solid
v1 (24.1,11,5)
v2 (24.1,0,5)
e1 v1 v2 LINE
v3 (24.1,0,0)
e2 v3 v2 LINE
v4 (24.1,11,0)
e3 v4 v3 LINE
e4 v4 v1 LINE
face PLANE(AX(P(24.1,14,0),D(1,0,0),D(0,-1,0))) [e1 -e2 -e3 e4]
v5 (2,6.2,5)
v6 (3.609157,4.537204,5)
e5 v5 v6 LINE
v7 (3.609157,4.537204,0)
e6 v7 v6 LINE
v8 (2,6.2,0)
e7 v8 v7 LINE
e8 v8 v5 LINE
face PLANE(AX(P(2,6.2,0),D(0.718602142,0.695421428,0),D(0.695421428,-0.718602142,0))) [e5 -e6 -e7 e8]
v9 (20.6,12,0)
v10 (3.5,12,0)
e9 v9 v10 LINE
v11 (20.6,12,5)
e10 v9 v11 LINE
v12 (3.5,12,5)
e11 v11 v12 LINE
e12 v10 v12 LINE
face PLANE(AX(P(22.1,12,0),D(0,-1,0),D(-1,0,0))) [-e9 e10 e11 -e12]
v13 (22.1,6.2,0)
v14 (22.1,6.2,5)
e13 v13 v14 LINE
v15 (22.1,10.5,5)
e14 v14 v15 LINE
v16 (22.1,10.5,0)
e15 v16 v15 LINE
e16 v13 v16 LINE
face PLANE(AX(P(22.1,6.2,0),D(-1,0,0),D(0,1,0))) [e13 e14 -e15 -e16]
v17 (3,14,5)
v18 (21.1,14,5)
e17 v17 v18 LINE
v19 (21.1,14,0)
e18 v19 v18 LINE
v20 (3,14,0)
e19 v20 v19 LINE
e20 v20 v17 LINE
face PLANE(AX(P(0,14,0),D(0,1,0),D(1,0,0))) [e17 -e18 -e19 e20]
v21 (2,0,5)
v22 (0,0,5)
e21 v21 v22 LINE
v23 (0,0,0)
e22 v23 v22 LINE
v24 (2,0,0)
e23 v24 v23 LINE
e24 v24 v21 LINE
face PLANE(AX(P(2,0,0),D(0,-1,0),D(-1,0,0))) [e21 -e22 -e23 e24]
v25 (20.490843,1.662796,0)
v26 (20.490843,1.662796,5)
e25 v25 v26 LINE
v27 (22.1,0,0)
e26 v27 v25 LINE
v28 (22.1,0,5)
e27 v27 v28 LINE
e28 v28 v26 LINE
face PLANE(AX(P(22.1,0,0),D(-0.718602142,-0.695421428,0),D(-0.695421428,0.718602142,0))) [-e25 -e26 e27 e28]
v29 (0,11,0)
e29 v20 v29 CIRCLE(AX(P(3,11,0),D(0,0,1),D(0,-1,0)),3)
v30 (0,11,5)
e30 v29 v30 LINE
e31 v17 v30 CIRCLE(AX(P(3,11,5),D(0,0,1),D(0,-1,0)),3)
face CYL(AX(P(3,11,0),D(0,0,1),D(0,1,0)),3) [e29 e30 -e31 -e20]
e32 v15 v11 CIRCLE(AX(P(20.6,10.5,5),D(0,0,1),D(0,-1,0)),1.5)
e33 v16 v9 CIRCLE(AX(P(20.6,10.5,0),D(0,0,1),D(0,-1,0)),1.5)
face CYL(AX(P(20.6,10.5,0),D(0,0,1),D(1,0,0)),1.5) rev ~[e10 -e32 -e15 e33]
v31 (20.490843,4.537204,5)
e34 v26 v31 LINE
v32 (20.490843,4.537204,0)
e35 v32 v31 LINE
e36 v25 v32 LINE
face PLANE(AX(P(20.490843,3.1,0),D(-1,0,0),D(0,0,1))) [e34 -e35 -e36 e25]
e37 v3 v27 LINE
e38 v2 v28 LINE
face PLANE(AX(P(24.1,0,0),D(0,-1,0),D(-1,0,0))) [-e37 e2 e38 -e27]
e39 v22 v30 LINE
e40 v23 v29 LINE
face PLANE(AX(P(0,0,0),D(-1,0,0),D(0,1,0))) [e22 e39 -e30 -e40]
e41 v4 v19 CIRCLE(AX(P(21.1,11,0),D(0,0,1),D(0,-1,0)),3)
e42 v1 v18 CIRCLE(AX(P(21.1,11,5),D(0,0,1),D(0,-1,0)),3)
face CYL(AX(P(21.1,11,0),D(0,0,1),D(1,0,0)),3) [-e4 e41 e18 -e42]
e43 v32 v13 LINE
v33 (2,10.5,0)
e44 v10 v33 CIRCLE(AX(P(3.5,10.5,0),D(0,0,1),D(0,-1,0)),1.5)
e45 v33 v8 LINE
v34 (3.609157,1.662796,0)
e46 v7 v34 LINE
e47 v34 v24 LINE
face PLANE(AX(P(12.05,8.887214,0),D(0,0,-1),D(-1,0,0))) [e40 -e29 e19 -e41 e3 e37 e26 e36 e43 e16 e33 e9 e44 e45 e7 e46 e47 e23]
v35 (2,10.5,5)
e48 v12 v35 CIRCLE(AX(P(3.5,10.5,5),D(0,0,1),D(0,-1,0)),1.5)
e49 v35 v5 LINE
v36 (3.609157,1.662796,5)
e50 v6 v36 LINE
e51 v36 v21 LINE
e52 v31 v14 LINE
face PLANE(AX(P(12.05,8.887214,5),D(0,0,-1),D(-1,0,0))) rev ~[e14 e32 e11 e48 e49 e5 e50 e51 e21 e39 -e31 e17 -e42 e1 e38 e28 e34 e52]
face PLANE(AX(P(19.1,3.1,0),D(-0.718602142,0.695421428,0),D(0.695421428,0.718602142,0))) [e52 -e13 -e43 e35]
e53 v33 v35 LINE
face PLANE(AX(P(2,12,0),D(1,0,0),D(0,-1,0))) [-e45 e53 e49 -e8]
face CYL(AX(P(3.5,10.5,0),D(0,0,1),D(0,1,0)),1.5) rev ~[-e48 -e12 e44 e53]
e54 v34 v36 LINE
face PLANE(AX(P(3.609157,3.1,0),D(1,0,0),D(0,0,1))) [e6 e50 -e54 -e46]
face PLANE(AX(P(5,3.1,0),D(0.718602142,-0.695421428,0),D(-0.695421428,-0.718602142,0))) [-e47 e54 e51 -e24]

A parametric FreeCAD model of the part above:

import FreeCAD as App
import Part
import Sketcher

V = App.Vector
Q = App.Units.Quantity


def edges_at(feature, points):
    """Names of the edges that pass closest to the given points."""
    edges = feature.Shape.Edges
    near = lambda p: min(range(len(edges)), key=lambda i: edges[i].distToShape(Part.Vertex(*p))[0])
    return sorted({f"Edge{near(p) + 1}" for p in points})

doc = App.newDocument("Part")
body = doc.addObject("PartDesign::Body", "Body")

# Sketch on XY plane
sketch1 = body.newObject("Sketcher::SketchObject", "Sketch")
sketch1.AttachmentSupport = (doc.getObject("XY_Plane"), [""])
sketch1.MapMode = "FlatFace"
sketch1.addGeometry(Part.LineSegment(V(0, 14, 0), V(0, 0, 0)), False)
sketch1.addGeometry(Part.LineSegment(V(0, 0, 0), V(2, 0, 0)), False)
sketch1.addGeometry(Part.LineSegment(V(2, 0, 0), V(5, 3.1, 0)), False)
sketch1.addGeometry(Part.LineSegment(V(5, 3.1, 0), V(2, 6.2, 0)), False)
sketch1.addGeometry(Part.LineSegment(V(2, 6.2, 0), V(2, 12, 0)), False)
sketch1.addGeometry(Part.LineSegment(V(2, 12, 0), V(22.1, 12, 0)), False)
sketch1.addGeometry(Part.LineSegment(V(22.1, 12, 0), V(22.1, 6.2, 0)), False)
sketch1.addGeometry(Part.LineSegment(V(22.1, 6.2, 0), V(19.1, 3.1, 0)), False)
sketch1.addGeometry(Part.LineSegment(V(19.1, 3.1, 0), V(22.1, 0, 0)), False)
sketch1.addGeometry(Part.LineSegment(V(22.1, 0, 0), V(24.1, 0, 0)), False)
sketch1.addGeometry(Part.LineSegment(V(24.1, 0, 0), V(24.1, 14, 0)), False)
sketch1.addGeometry(Part.LineSegment(V(24.1, 14, 0), V(0, 14, 0)), False)
sketch1.addConstraint(Sketcher.Constraint("Coincident", 0, 2, 1, 1))
sketch1.addConstraint(Sketcher.Constraint("Coincident", 1, 2, 2, 1))
sketch1.addConstraint(Sketcher.Constraint("Coincident", 2, 2, 3, 1))
sketch1.addConstraint(Sketcher.Constraint("Coincident", 3, 2, 4, 1))
sketch1.addConstraint(Sketcher.Constraint("Coincident", 4, 2, 5, 1))
sketch1.addConstraint(Sketcher.Constraint("Coincident", 5, 2, 6, 1))
sketch1.addConstraint(Sketcher.Constraint("Coincident", 6, 2, 7, 1))
sketch1.addConstraint(Sketcher.Constraint("Coincident", 7, 2, 8, 1))
sketch1.addConstraint(Sketcher.Constraint("Coincident", 8, 2, 9, 1))
sketch1.addConstraint(Sketcher.Constraint("Coincident", 9, 2, 10, 1))
sketch1.addConstraint(Sketcher.Constraint("Coincident", 10, 2, 11, 1))
sketch1.addConstraint(Sketcher.Constraint("Coincident", 11, 2, 0, 1))
sketch1.addConstraint(Sketcher.Constraint("Vertical", 0))
sketch1.addConstraint(Sketcher.Constraint("Horizontal", 1))
sketch1.addConstraint(Sketcher.Constraint("Vertical", 4))
sketch1.addConstraint(Sketcher.Constraint("Horizontal", 5))
sketch1.addConstraint(Sketcher.Constraint("Vertical", 6))
sketch1.addConstraint(Sketcher.Constraint("Horizontal", 9))
sketch1.addConstraint(Sketcher.Constraint("Vertical", 10))
sketch1.addConstraint(Sketcher.Constraint("Horizontal", 11))
sketch1.addConstraint(Sketcher.Constraint("Coincident", 0, 2, -1, 1))
sketch1.addConstraint(Sketcher.Constraint("PointOnObject", 8, 2, -1))
sketch1.addConstraint(Sketcher.Constraint("Parallel", 2, 7))
sketch1.addConstraint(Sketcher.Constraint("Parallel", 3, 8))
sketch1.addConstraint(Sketcher.Constraint("Horizontal", 3, 2, 6, 2))
sketch1.addConstraint(Sketcher.Constraint("Horizontal", 2, 2, 7, 2))
sketch1.addConstraint(Sketcher.Constraint("Vertical", 1, 2, 3, 2))
sketch1.addConstraint(Sketcher.Constraint("Vertical", 6, 2, 8, 2))
sketch1.addConstraint(Sketcher.Constraint("Equal", 1, 9))
sketch1.addConstraint(Sketcher.Constraint("DistanceX", 1, 1, 1, 2, Q("2 mm")))
sketch1.addConstraint(Sketcher.Constraint("DistanceY", 0, 2, 0, 1, Q("14 mm")))
sketch1.addConstraint(Sketcher.Constraint("DistanceX", 5, 1, 5, 2, Q("20.1 mm")))
sketch1.addConstraint(Sketcher.Constraint("DistanceY", 4, 1, 4, 2, Q("5.8 mm")))
sketch1.addConstraint(Sketcher.Constraint("DistanceX", -1, 1, 2, 2, Q("5 mm")))
sketch1.addConstraint(Sketcher.Constraint("DistanceY", -1, 1, 4, 2, Q("12 mm")))
pad1 = body.newObject("PartDesign::Pad", "Pad")
pad1.Profile = sketch1
pad1.Length = 5
doc.recompute()

chamfer = body.newObject("PartDesign::Chamfer", "Chamfer")
chamfer.Base = (pad1, edges_at(pad1, [(5, 3.1, 2.5), (19.1, 3.1, 2.5)]))
chamfer.Size = 2
doc.recompute()

fillet = body.newObject("PartDesign::Fillet", "Fillet")
fillet.Base = (chamfer, edges_at(chamfer, [(2, 12, 2.5), (22.1, 12, 2.5)]))
fillet.Radius = 1.5
doc.recompute()

fillet2 = body.newObject("PartDesign::Fillet", "Fillet001")
fillet2.Base = (fillet, edges_at(fillet, [(0, 14, 2.5), (24.1, 14, 2.5)]))
fillet2.Radius = 3

doc.recompute()
